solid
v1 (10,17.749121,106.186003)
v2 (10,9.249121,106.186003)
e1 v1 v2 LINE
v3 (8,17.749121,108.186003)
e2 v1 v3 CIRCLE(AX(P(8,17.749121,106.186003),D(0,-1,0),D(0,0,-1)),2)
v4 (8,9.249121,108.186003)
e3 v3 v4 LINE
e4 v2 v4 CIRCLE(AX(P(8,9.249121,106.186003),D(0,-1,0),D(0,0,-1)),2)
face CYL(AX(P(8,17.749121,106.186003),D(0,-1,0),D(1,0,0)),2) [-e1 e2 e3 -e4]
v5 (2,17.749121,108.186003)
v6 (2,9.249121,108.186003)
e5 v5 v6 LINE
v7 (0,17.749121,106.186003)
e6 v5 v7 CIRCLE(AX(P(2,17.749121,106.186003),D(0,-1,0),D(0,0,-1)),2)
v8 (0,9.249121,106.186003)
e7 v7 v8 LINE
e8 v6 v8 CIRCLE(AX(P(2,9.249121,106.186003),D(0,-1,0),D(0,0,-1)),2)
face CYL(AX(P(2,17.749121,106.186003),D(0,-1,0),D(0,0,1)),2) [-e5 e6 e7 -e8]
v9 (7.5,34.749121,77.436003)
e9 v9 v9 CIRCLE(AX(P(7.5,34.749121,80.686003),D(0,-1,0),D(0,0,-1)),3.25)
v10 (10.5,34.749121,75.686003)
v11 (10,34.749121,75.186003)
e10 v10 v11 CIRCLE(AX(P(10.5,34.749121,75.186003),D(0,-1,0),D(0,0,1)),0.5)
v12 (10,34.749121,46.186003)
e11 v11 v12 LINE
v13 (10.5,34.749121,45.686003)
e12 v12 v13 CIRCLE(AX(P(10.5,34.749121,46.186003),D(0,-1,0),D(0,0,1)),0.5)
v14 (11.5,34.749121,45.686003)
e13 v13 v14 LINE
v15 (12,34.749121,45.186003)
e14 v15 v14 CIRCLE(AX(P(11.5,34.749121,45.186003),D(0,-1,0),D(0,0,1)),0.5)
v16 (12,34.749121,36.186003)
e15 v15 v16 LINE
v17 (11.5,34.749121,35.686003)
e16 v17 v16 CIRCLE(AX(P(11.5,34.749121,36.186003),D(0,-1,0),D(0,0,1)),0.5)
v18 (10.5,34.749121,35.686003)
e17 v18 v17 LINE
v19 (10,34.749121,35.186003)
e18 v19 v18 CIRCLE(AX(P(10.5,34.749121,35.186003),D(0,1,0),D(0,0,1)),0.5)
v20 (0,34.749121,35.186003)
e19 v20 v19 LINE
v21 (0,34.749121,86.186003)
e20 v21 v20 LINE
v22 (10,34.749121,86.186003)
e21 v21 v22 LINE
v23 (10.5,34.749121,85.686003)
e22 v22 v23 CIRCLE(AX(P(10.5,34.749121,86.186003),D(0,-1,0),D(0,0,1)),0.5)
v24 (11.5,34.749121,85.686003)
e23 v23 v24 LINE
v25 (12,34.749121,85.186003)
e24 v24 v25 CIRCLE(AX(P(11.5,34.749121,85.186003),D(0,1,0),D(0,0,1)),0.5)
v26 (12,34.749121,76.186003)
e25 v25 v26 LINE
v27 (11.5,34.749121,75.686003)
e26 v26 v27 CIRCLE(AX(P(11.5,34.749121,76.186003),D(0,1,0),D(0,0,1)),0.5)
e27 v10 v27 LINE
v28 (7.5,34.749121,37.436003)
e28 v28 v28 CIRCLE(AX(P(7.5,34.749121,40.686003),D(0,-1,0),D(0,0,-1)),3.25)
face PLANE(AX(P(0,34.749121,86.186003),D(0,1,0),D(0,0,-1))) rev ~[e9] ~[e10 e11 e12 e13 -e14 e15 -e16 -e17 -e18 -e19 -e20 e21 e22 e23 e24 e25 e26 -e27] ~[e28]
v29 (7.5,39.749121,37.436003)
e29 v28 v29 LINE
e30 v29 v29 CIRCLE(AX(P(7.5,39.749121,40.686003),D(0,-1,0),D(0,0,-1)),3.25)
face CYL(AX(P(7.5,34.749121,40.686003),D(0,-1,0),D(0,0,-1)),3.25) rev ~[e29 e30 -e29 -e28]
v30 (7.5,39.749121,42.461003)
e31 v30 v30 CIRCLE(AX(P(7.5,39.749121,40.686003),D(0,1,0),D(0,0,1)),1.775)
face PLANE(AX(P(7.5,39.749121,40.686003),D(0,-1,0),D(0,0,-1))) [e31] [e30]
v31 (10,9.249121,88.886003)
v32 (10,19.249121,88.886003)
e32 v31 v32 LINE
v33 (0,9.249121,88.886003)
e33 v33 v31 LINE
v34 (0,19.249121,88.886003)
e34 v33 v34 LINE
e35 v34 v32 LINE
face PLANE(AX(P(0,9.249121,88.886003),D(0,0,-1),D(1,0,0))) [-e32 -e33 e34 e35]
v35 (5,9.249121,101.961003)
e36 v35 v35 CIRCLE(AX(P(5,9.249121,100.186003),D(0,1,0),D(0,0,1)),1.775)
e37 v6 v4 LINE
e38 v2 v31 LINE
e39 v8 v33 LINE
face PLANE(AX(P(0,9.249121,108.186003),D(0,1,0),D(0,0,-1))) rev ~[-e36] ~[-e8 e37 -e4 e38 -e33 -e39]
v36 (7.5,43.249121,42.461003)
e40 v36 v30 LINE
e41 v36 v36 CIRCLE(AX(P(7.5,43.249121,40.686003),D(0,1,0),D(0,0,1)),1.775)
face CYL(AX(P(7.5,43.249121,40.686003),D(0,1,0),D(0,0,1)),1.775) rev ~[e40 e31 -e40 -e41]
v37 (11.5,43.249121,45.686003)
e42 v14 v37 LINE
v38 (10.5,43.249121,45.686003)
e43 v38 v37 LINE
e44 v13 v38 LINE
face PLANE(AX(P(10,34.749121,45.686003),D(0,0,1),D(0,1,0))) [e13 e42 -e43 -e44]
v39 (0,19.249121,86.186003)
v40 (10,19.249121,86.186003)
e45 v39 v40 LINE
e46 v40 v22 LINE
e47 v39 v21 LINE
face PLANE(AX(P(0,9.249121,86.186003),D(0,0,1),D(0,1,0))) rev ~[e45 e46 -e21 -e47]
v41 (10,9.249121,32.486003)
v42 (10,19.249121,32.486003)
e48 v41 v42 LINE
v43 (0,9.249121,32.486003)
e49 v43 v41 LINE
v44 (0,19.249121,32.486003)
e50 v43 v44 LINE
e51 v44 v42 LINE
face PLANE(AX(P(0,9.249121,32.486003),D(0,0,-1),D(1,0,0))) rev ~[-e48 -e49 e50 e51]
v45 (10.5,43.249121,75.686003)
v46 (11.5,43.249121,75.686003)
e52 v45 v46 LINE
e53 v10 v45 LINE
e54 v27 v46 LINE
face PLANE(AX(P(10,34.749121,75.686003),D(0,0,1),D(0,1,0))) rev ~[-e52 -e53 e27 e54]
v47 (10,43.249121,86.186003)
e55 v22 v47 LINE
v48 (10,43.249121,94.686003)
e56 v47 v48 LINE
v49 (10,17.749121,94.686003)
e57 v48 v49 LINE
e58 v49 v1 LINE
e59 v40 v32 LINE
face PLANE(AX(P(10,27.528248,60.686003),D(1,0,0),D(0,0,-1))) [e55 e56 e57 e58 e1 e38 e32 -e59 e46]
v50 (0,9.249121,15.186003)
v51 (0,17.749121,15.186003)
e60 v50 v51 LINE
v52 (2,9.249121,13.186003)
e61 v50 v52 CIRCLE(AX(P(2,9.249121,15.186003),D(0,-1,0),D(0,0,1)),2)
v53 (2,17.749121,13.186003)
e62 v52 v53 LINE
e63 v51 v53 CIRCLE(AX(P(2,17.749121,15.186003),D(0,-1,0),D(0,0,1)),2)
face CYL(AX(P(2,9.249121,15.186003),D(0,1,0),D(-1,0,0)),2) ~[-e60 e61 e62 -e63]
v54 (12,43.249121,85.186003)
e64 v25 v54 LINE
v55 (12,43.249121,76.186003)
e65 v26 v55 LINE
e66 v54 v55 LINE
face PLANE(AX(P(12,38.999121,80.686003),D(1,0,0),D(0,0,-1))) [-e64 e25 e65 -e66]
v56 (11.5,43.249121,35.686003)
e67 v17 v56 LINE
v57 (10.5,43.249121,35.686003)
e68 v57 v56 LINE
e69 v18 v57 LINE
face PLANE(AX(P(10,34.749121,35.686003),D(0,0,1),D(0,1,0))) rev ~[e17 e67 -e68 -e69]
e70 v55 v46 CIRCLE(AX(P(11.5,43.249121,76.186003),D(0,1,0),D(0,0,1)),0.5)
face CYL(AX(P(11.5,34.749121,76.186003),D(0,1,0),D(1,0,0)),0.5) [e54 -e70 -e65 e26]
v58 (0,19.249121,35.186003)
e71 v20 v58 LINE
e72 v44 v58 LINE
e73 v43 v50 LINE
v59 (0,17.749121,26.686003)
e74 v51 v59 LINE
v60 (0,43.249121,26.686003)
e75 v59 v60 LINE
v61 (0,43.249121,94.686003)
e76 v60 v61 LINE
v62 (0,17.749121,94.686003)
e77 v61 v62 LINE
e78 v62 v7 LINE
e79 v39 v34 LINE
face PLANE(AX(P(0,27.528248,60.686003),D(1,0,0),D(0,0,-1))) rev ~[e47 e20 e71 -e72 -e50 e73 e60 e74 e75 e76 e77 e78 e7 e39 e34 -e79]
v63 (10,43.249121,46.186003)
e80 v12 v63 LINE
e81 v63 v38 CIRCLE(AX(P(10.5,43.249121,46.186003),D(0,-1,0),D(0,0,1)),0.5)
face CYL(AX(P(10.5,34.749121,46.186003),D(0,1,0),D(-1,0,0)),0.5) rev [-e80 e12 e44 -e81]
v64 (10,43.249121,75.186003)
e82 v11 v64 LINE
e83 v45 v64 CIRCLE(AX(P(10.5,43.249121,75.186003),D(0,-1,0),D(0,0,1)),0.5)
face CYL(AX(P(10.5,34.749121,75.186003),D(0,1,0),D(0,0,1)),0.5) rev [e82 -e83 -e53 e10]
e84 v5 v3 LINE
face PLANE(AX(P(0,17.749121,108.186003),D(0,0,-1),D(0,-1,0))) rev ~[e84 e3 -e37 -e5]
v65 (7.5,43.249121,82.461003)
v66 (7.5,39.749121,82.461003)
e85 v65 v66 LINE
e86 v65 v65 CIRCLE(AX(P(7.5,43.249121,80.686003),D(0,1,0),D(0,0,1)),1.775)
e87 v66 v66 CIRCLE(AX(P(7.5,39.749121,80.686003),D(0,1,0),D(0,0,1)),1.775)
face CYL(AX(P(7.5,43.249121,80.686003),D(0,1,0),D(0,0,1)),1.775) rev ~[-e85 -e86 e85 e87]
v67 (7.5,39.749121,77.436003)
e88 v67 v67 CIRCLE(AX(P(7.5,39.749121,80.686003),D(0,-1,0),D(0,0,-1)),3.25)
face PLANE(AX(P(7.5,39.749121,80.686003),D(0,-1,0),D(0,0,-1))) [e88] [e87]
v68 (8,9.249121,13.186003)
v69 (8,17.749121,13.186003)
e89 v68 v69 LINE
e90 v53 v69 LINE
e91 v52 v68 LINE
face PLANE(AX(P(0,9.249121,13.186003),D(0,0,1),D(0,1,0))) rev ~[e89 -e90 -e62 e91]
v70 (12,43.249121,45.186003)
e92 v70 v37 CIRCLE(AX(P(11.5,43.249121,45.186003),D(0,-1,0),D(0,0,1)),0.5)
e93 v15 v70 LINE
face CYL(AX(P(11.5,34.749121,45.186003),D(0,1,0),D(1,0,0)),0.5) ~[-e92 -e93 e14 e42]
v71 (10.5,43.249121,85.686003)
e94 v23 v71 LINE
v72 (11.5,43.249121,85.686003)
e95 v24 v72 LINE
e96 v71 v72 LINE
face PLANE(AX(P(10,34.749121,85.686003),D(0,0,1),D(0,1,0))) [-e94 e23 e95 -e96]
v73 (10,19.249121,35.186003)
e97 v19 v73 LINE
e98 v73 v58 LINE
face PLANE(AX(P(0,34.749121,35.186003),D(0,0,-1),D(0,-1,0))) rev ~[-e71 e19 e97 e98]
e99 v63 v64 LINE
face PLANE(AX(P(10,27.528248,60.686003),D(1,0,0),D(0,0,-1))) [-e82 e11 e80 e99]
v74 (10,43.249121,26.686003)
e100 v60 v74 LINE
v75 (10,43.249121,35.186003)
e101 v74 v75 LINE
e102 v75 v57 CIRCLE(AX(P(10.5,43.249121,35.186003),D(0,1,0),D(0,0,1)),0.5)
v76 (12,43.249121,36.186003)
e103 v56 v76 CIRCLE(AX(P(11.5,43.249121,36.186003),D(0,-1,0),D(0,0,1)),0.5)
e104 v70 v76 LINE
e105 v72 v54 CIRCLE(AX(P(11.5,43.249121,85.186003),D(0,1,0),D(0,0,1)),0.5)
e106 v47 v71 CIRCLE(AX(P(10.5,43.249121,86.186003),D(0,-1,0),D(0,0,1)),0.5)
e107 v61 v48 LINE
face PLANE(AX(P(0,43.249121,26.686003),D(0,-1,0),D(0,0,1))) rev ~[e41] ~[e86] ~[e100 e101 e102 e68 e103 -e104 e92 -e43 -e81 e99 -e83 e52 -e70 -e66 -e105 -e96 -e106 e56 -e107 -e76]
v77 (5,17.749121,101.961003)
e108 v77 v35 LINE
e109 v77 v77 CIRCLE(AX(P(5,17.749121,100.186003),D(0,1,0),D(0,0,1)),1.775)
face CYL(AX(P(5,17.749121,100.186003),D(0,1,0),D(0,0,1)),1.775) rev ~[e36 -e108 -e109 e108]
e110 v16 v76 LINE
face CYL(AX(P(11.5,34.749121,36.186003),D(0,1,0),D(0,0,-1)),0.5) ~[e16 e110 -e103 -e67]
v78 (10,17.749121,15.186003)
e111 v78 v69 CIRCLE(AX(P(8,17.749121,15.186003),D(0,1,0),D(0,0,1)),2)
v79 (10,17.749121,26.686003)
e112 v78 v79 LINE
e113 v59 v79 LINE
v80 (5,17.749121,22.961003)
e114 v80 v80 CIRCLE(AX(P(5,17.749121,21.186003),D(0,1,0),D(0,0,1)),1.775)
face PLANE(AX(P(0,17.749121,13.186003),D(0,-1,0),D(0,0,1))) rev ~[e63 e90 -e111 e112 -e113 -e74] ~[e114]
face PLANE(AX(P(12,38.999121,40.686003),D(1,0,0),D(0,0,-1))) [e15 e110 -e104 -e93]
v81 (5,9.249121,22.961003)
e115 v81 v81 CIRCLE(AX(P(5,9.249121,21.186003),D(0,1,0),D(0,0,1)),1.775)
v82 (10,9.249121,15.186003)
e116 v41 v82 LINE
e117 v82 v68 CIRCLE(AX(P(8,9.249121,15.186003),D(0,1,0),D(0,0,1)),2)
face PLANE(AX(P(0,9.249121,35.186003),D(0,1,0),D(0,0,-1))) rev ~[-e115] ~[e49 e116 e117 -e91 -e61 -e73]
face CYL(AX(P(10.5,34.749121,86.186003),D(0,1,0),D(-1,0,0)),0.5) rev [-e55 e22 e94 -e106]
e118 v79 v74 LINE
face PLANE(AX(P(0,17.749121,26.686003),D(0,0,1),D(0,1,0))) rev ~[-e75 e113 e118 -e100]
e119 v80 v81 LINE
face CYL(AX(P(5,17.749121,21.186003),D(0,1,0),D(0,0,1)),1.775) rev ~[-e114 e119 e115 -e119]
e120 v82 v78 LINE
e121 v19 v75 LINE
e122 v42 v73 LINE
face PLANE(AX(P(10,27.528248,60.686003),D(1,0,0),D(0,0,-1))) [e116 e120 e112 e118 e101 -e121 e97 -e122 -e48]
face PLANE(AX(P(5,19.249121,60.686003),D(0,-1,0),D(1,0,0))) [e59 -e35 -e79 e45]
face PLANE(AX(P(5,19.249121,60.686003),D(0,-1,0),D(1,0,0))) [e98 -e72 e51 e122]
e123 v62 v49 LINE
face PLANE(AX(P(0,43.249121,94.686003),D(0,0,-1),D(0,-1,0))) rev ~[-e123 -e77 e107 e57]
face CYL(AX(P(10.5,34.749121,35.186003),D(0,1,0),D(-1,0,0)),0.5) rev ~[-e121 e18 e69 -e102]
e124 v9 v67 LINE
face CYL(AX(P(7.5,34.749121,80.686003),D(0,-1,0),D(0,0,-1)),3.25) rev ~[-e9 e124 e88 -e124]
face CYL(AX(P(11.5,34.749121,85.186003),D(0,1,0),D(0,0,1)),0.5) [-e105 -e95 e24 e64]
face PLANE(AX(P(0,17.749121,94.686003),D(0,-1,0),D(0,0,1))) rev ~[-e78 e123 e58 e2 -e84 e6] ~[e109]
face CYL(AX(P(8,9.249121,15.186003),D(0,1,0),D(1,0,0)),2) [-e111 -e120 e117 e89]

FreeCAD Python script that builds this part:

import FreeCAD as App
import Part
import Sketcher
from FreeCAD import Vector


def edges_at(feature, points):
    """Names of the edges that pass closest to the given points."""
    edges = feature.Shape.Edges
    near = lambda p: min(range(len(edges)), key=lambda i: edges[i].distToShape(Part.Vertex(*p))[0])
    return sorted({f"Edge{near(p) + 1}" for p in points})

doc = App.newDocument("Part")
body = doc.addObject("PartDesign::Body", "Body")

sketch1 = body.newObject("Sketcher::SketchObject", "Sketch")
sketch1.AttachmentSupport = (doc.getObject("YZ_Plane"), [""])
sketch1.MapMode = "FlatFace"
sketch1.addGeometry(Part.LineSegment(Vector(9, 108, 0), Vector(9, 86, 0)), False)
sketch1.addGeometry(Part.LineSegment(Vector(9, 86, 0), Vector(35, 86, 0)), False)
sketch1.addGeometry(Part.LineSegment(Vector(35, 86, 0), Vector(35, 35, 0)), False)
sketch1.addGeometry(Part.LineSegment(Vector(35, 35, 0), Vector(9, 35, 0)), False)
sketch1.addGeometry(Part.LineSegment(Vector(9, 35, 0), Vector(9, 13, 0)), False)
sketch1.addGeometry(Part.LineSegment(Vector(9, 13, 0), Vector(18, 13, 0)), False)
sketch1.addGeometry(Part.LineSegment(Vector(18, 13, 0), Vector(18, 27, 0)), False)
sketch1.addGeometry(Part.LineSegment(Vector(18, 27, 0), Vector(43, 27, 0)), False)
sketch1.addGeometry(Part.LineSegment(Vector(43, 27, 0), Vector(43, 95, 0)), False)
sketch1.addGeometry(Part.LineSegment(Vector(43, 95, 0), Vector(18, 95, 0)), False)
sketch1.addGeometry(Part.LineSegment(Vector(18, 95, 0), Vector(18, 108, 0)), False)
sketch1.addGeometry(Part.LineSegment(Vector(18, 108, 0), Vector(9, 108, 0)), False)
sketch1.addConstraint(Sketcher.Constraint("Coincident", 0, 2, 1, 1))
sketch1.addConstraint(Sketcher.Constraint("Coincident", 1, 2, 2, 1))
sketch1.addConstraint(Sketcher.Constraint("Coincident", 2, 2, 3, 1))
sketch1.addConstraint(Sketcher.Constraint("Coincident", 3, 2, 4, 1))
sketch1.addConstraint(Sketcher.Constraint("Coincident", 4, 2, 5, 1))
sketch1.addConstraint(Sketcher.Constraint("Coincident", 5, 2, 6, 1))
sketch1.addConstraint(Sketcher.Constraint("Coincident", 6, 2, 7, 1))
sketch1.addConstraint(Sketcher.Constraint("Coincident", 7, 2, 8, 1))
sketch1.addConstraint(Sketcher.Constraint("Coincident", 8, 2, 9, 1))
sketch1.addConstraint(Sketcher.Constraint("Coincident", 9, 2, 10, 1))
sketch1.addConstraint(Sketcher.Constraint("Coincident", 10, 2, 11, 1))
sketch1.addConstraint(Sketcher.Constraint("Coincident", 11, 2, 0, 1))
sketch1.addConstraint(Sketcher.Constraint("Vertical", 0))
sketch1.addConstraint(Sketcher.Constraint("Horizontal", 1))
sketch1.addConstraint(Sketcher.Constraint("Vertical", 2))
sketch1.addConstraint(Sketcher.Constraint("Horizontal", 3))
sketch1.addConstraint(Sketcher.Constraint("Vertical", 4))
sketch1.addConstraint(Sketcher.Constraint("Horizontal", 5))
sketch1.addConstraint(Sketcher.Constraint("Vertical", 6))
sketch1.addConstraint(Sketcher.Constraint("Horizontal", 7))
sketch1.addConstraint(Sketcher.Constraint("Vertical", 8))
sketch1.addConstraint(Sketcher.Constraint("Horizontal", 9))
sketch1.addConstraint(Sketcher.Constraint("Vertical", 10))
sketch1.addConstraint(Sketcher.Constraint("Horizontal", 11))
sketch1.addConstraint(Sketcher.Constraint("Vertical", 0, 2, 3, 2))
sketch1.addConstraint(Sketcher.Constraint("Vertical", 6, 2, 9, 2))
sketch1.addConstraint(Sketcher.Constraint("Equal", 3, 7))
sketch1.addConstraint(Sketcher.Constraint("Equal", 0, 4))
sketch1.addConstraint(Sketcher.Constraint("Equal", 6, 10))
sketch1.addConstraint(Sketcher.Constraint("DistanceY", 0, 2, 0, 1, 22.0))
sketch1.addConstraint(Sketcher.Constraint("DistanceY", 2, 2, 2, 1, 51.0))
sketch1.addConstraint(Sketcher.Constraint("DistanceY", 8, 1, 8, 2, 68.0))
sketch1.addConstraint(Sketcher.Constraint("DistanceX", 1, 1, 1, 2, 25.5))
sketch1.addConstraint(Sketcher.Constraint("DistanceX", 5, 1, 5, 2, 8.5))
sketch1.addConstraint(Sketcher.Constraint("DistanceX", -1, 1, 0, 2, 9.249121))
sketch1.addConstraint(Sketcher.Constraint("DistanceY", -1, 1, 0, 2, 86.186003))
pad1 = body.newObject("PartDesign::Pad", "Pad")
pad1.Profile = sketch1
pad1.Length = 10

sketch2 = body.newObject("Sketcher::SketchObject", "Sketch001")
sketch2.AttachmentSupport = (doc.getObject("XZ_Plane"), [""])
sketch2.MapMode = "FlatFace"
sketch2.AttachmentOffset = App.Placement(Vector(0, 0, -17.749121), App.Rotation())
sketch2.addGeometry(Part.Circle(Vector(5, 100.2, 0), Vector(0, 0, 1), 1.8), False)
sketch2.addGeometry(Part.Circle(Vector(5, 21.2, 0), Vector(0, 0, 1), 1.8), False)
sketch2.addConstraint(Sketcher.Constraint("Equal", 0, 1))
sketch2.addConstraint(Sketcher.Constraint("Vertical", 0, 3, 1, 3))
sketch2.addConstraint(Sketcher.Constraint("Diameter", 0, 3.55))
sketch2.addConstraint(Sketcher.Constraint("DistanceX", -1, 1, 0, 3, 5.0))
sketch2.addConstraint(Sketcher.Constraint("DistanceY", 1, 3, 0, 3, 79.0))
sketch2.addConstraint(Sketcher.Constraint("DistanceY", -1, 1, 0, 3, 100.186003))
pocket1 = body.newObject("PartDesign::Pocket", "Pocket")
pocket1.Profile = sketch2
pocket1.Type = "ThroughAll"
pocket1.Reversed = True

sketch3 = body.newObject("Sketcher::SketchObject", "Sketch002")
sketch3.AttachmentSupport = (doc.getObject("YZ_Plane"), [""])
sketch3.MapMode = "FlatFace"
sketch3.AttachmentOffset = App.Placement(Vector(0, 0, 10), App.Rotation())
sketch3.addGeometry(Part.LineSegment(Vector(43, 86, 0), Vector(35, 86, 0)), False)
sketch3.addGeometry(Part.LineSegment(Vector(35, 86, 0), Vector(35, 76, 0)), False)
sketch3.addGeometry(Part.LineSegment(Vector(35, 76, 0), Vector(43, 76, 0)), False)
sketch3.addGeometry(Part.LineSegment(Vector(43, 76, 0), Vector(43, 86, 0)), False)
sketch3.addGeometry(Part.LineSegment(Vector(43, 46, 0), Vector(35, 46, 0)), False)
sketch3.addGeometry(Part.LineSegment(Vector(35, 46, 0), Vector(35, 36, 0)), False)
sketch3.addGeometry(Part.LineSegment(Vector(35, 36, 0), Vector(43, 36, 0)), False)
sketch3.addGeometry(Part.LineSegment(Vector(43, 36, 0), Vector(43, 46, 0)), False)
sketch3.addConstraint(Sketcher.Constraint("Coincident", 0, 2, 1, 1))
sketch3.addConstraint(Sketcher.Constraint("Coincident", 1, 2, 2, 1))
sketch3.addConstraint(Sketcher.Constraint("Coincident", 2, 2, 3, 1))
sketch3.addConstraint(Sketcher.Constraint("Coincident", 3, 2, 0, 1))
sketch3.addConstraint(Sketcher.Constraint("Coincident", 4, 2, 5, 1))
sketch3.addConstraint(Sketcher.Constraint("Coincident", 5, 2, 6, 1))
sketch3.addConstraint(Sketcher.Constraint("Coincident", 6, 2, 7, 1))
sketch3.addConstraint(Sketcher.Constraint("Coincident", 7, 2, 4, 1))
sketch3.addConstraint(Sketcher.Constraint("Horizontal", 0))
sketch3.addConstraint(Sketcher.Constraint("Vertical", 1))
sketch3.addConstraint(Sketcher.Constraint("Horizontal", 2))
sketch3.addConstraint(Sketcher.Constraint("Vertical", 3))
sketch3.addConstraint(Sketcher.Constraint("Horizontal", 4))
sketch3.addConstraint(Sketcher.Constraint("Vertical", 5))
sketch3.addConstraint(Sketcher.Constraint("Horizontal", 6))
sketch3.addConstraint(Sketcher.Constraint("Vertical", 7))
sketch3.addConstraint(Sketcher.Constraint("Vertical", 1, 2, 4, 2))
sketch3.addConstraint(Sketcher.Constraint("Vertical", 3, 2, 6, 2))
sketch3.addConstraint(Sketcher.Constraint("Equal", 3, 5))
sketch3.addConstraint(Sketcher.Constraint("DistanceY", 1, 2, 1, 1, 10.0))
sketch3.addConstraint(Sketcher.Constraint("DistanceX", 0, 2, 0, 1, 8.5))
sketch3.addConstraint(Sketcher.Constraint("DistanceY", 4, 2, 1, 2, 30.0))
sketch3.addConstraint(Sketcher.Constraint("DistanceX", -1, 1, 0, 2, 34.749121))
sketch3.addConstraint(Sketcher.Constraint("DistanceY", -1, 1, 0, 2, 85.686003))
pad2 = body.newObject("PartDesign::Pad", "Pad001")
pad2.Profile = sketch3
pad2.Length = 2

sketch4 = body.newObject("Sketcher::SketchObject", "Sketch003")
sketch4.AttachmentSupport = (doc.getObject("XZ_Plane"), [""])
sketch4.MapMode = "FlatFace"
sketch4.AttachmentOffset = App.Placement(Vector(0, 0, -43.249121), App.Rotation())
sketch4.addGeometry(Part.Circle(Vector(7.5, 80.7, 0), Vector(0, 0, 1), 1.8), False)
sketch4.addGeometry(Part.Circle(Vector(7.5, 40.7, 0), Vector(0, 0, 1), 1.8), False)
sketch4.addConstraint(Sketcher.Constraint("Equal", 0, 1))
sketch4.addConstraint(Sketcher.Constraint("Vertical", 0, 3, 1, 3))
sketch4.addConstraint(Sketcher.Constraint("Diameter", 0, 3.55))
sketch4.addConstraint(Sketcher.Constraint("DistanceY", 1, 3, 0, 3, 40.0))
sketch4.addConstraint(Sketcher.Constraint("DistanceX", -1, 1, 0, 3, 7.5))
sketch4.addConstraint(Sketcher.Constraint("DistanceY", -1, 1, 0, 3, 80.686003))
pocket2 = body.newObject("PartDesign::Pocket", "Pocket001")
pocket2.Profile = sketch4
pocket2.Type = "ThroughAll"
pocket2.Reversed = True
doc.recompute()

fillet = body.newObject("PartDesign::Fillet", "Fillet")
fillet.Base = (pocket2, edges_at(pocket2, [
    (10, 38.999, 35.686),
    (10, 38.999, 45.686),
    (12, 38.999, 35.686),
    (12, 38.999, 45.686),
    (10, 38.999, 75.686),
    (12, 38.999, 75.686),
    (12, 38.999, 85.686),
    (10, 38.999, 85.686),
]))
fillet.Radius = 0.5
doc.recompute()

fillet2 = body.newObject("PartDesign::Fillet", "Fillet001")
fillet2.Base = (fillet, edges_at(fillet, [
    (0, 13.499, 13.186),
    (0, 13.499, 108.186),
    (10, 13.499, 13.186),
    (10, 13.499, 108.186),
]))
fillet2.Radius = 2

sketch5 = body.newObject("Sketcher::SketchObject", "Sketch004")
sketch5.AttachmentSupport = (doc.getObject("XZ_Plane"), [""])
sketch5.MapMode = "FlatFace"
sketch5.AttachmentOffset = App.Placement(Vector(0, 0, -9.249121), App.Rotation())
sketch5.addGeometry(Part.LineSegment(Vector(0, 89, 0), Vector(0, 32, 0)), False)
sketch5.addGeometry(Part.LineSegment(Vector(0, 32, 0), Vector(10, 32, 0)), False)
sketch5.addGeometry(Part.LineSegment(Vector(10, 32, 0), Vector(10, 89, 0)), False)
sketch5.addGeometry(Part.LineSegment(Vector(10, 89, 0), Vector(0, 89, 0)), False)
sketch5.addConstraint(Sketcher.Constraint("Coincident", 0, 2, 1, 1))
sketch5.addConstraint(Sketcher.Constraint("Coincident", 1, 2, 2, 1))
sketch5.addConstraint(Sketcher.Constraint("Coincident", 2, 2, 3, 1))
sketch5.addConstraint(Sketcher.Constraint("Coincident", 3, 2, 0, 1))
sketch5.addConstraint(Sketcher.Constraint("Vertical", 0))
sketch5.addConstraint(Sketcher.Constraint("Horizontal", 1))
sketch5.addConstraint(Sketcher.Constraint("Vertical", 2))
sketch5.addConstraint(Sketcher.Constraint("Horizontal", 3))
sketch5.addConstraint(Sketcher.Constraint("PointOnObject", 0, 2, -2))
sketch5.addConstraint(Sketcher.Constraint("DistanceX", 1, 1, 1, 2, 10.0))
sketch5.addConstraint(Sketcher.Constraint("DistanceY", 0, 2, 0, 1, 56.4))
sketch5.addConstraint(Sketcher.Constraint("DistanceY", -1, 1, 0, 2, 32.486003))
pocket3 = body.newObject("PartDesign::Pocket", "Pocket002")
pocket3.Profile = sketch5
pocket3.Length = 10

sketch6 = body.newObject("Sketcher::SketchObject", "Sketch005")
sketch6.AttachmentSupport = (doc.getObject("XZ_Plane"), [""])
sketch6.MapMode = "FlatFace"
sketch6.AttachmentOffset = App.Placement(Vector(0, 0, -34.749121), App.Rotation())
sketch6.addGeometry(Part.Circle(Vector(7.5, 80.7, 0), Vector(0, 0, 1), 3.2), False)
sketch6.addGeometry(Part.Circle(Vector(7.5, 40.7, 0), Vector(0, 0, 1), 3.2), False)
sketch6.addConstraint(Sketcher.Constraint("Equal", 0, 1))
sketch6.addConstraint(Sketcher.Constraint("Vertical", 0, 3, 1, 3))
sketch6.addConstraint(Sketcher.Constraint("Diameter", 0, 6.5))
sketch6.addConstraint(Sketcher.Constraint("DistanceY", 1, 3, 0, 3, 40.0))
sketch6.addConstraint(Sketcher.Constraint("DistanceX", -1, 1, 0, 3, 7.5))
sketch6.addConstraint(Sketcher.Constraint("DistanceY", -1, 1, 0, 3, 80.686003))
pocket4 = body.newObject("PartDesign::Pocket", "Pocket003")
pocket4.Profile = sketch6
pocket4.Length = 5

doc.recompute()
